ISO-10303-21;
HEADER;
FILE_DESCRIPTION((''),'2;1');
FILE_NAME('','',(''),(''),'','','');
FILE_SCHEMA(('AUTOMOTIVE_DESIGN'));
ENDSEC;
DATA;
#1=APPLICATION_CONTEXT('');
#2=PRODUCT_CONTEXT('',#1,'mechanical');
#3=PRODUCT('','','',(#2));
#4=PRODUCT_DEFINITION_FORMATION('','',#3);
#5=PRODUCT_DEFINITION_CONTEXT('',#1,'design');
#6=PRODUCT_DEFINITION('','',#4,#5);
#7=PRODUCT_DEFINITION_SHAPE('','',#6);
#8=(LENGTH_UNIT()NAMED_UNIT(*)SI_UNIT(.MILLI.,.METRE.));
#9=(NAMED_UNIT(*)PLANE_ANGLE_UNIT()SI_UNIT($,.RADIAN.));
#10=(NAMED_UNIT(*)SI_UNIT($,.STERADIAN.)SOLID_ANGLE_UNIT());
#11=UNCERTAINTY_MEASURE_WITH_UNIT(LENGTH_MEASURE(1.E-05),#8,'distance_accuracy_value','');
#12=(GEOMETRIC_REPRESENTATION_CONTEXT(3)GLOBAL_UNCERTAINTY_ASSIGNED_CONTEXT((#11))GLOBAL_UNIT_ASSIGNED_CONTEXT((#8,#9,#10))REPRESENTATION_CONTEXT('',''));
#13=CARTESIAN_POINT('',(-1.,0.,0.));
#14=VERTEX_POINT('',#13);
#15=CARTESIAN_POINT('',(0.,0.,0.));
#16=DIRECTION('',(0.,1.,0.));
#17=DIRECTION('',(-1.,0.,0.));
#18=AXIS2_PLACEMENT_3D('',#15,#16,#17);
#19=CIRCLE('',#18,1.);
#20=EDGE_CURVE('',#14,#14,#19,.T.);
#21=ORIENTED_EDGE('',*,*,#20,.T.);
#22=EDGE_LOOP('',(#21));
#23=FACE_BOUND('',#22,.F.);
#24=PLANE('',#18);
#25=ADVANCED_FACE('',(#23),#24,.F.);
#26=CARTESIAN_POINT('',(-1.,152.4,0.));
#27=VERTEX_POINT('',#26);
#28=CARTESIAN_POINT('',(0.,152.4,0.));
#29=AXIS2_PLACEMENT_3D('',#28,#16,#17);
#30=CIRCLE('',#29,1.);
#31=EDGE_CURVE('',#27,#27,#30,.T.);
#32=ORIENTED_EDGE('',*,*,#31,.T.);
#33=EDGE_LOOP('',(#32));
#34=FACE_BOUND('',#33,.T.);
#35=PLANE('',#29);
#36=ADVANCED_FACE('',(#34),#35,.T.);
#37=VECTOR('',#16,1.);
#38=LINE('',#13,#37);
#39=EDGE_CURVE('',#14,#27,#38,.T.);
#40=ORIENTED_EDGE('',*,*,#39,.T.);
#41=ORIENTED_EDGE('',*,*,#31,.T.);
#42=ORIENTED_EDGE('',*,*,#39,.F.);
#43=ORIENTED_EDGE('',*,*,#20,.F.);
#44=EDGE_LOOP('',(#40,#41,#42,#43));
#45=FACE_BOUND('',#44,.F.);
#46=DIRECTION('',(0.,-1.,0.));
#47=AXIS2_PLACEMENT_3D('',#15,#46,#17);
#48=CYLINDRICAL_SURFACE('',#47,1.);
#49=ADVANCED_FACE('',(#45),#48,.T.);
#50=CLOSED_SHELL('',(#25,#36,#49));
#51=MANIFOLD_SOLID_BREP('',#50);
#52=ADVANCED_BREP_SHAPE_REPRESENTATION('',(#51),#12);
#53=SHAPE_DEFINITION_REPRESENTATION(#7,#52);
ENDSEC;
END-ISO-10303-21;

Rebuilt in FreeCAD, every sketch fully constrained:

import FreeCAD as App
import Part
import Sketcher
from FreeCAD import Vector
Q = App.Units.Quantity

doc = App.newDocument("Part")
body = doc.addObject("PartDesign::Body", "Body")

# Sketch on XZ plane
sketch1 = body.newObject("Sketcher::SketchObject", "Sketch")
sketch1.AttachmentSupport = (doc.getObject("XZ_Plane"), [""])
sketch1.MapMode = "FlatFace"
sketch1.addGeometry(Part.Circle(Vector(0, 0, 0), Vector(0, 0, 1), 1), False)
sketch1.addConstraint([
    Sketcher.Constraint("Coincident", 0, 3, -1, 1),
    Sketcher.Constraint("Diameter", 0, Q("2 mm")),
])
pad1 = body.newObject("PartDesign::Pad", "Pad")
pad1.Profile = sketch1
pad1.Length = 152.4
pad1.Reversed = True

doc.recompute()
